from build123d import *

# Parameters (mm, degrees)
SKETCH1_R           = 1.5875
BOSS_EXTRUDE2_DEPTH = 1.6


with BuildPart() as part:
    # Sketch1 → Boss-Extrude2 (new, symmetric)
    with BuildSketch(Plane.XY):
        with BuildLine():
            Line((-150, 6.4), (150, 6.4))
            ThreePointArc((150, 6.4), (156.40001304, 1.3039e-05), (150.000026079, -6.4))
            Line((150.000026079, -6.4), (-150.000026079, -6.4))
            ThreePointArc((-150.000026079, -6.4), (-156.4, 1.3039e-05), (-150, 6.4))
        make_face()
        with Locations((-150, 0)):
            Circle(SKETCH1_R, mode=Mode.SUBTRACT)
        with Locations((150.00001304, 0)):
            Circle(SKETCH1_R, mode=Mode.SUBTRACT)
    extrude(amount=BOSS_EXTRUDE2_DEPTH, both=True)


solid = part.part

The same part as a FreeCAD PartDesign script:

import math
import FreeCAD as App
import Part
import Sketcher

doc = App.newDocument("Part")
body = doc.addObject("PartDesign::Body", "Body")

# Sketch on XY plane
sketch1 = doc.addObject("Sketcher::SketchObject", "Sketch")
body.addObject(sketch1)
sketch1.AttachmentSupport = (doc.XY_Plane, [""])
sketch1.MapMode = "FlatFace"
sketch1.addGeometry(Part.LineSegment(App.Vector(150, 6.4, 0), App.Vector(-150, 6.4, 0)), False)
sketch1.addGeometry(Part.ArcOfCircle(Part.Circle(App.Vector(-150, 0, 0), App.Vector(0, 0, 1), 6.4), math.radians(90), math.radians(270)), False)
sketch1.addGeometry(Part.LineSegment(App.Vector(-150, -6.4, 0), App.Vector(150, -6.4, 0)), False)
sketch1.addGeometry(Part.ArcOfCircle(Part.Circle(App.Vector(150, 0, 0), App.Vector(0, 0, 1), 6.4), math.radians(-90), math.radians(90)), False)
sketch1.addGeometry(Part.Circle(App.Vector(150, 0, 0), App.Vector(0, 0, 1), 1.6), False)
sketch1.addGeometry(Part.Circle(App.Vector(-150, 0, 0), App.Vector(0, 0, 1), 1.6), False)
sketch1.addConstraint(Sketcher.Constraint("Tangent", 0, 2, 1, 1))
sketch1.addConstraint(Sketcher.Constraint("Coincident", 1, 2, 2, 1))
sketch1.addConstraint(Sketcher.Constraint("Coincident", 2, 2, 3, 1))
sketch1.addConstraint(Sketcher.Constraint("Coincident", 3, 2, 0, 1))
sketch1.addConstraint(Sketcher.Constraint("Horizontal", 0))
sketch1.addConstraint(Sketcher.Constraint("Horizontal", 2))
sketch1.addConstraint(Sketcher.Constraint("Coincident", 4, 3, 3, 3))
sketch1.addConstraint(Sketcher.Constraint("Coincident", 5, 3, 1, 3))
sketch1.addConstraint(Sketcher.Constraint("Equal", 4, 5))
sketch1.addConstraint(Sketcher.Constraint("PointOnObject", 1, 3, -1))
sketch1.addConstraint(Sketcher.Constraint("Radius", 1, 6.4))
sketch1.addConstraint(Sketcher.Constraint("DistanceX", 0, 2, 0, 1, 300.0))
sketch1.addConstraint(Sketcher.Constraint("Diameter", 4, 3.175))
sketch1.addConstraint(Sketcher.Constraint("DistanceX", 1, 3, -1, 1, 150.0))
sketch1.addConstraint(Sketcher.Constraint("DistanceX", 2, 1, 2, 2, 300.000052))
sketch1.addConstraint(Sketcher.Constraint("DistanceX", 1, 2, 3, 3, 300.000039))
sketch1.addConstraint(Sketcher.Constraint("DistanceX", -1, 1, 3, 3, 150.000013))
pad1 = doc.addObject("PartDesign::Pad", "Pad")
body.addObject(pad1)
pad1.Profile = sketch1
pad1.Length = 3.2
pad1.Midplane = True

doc.recompute()
